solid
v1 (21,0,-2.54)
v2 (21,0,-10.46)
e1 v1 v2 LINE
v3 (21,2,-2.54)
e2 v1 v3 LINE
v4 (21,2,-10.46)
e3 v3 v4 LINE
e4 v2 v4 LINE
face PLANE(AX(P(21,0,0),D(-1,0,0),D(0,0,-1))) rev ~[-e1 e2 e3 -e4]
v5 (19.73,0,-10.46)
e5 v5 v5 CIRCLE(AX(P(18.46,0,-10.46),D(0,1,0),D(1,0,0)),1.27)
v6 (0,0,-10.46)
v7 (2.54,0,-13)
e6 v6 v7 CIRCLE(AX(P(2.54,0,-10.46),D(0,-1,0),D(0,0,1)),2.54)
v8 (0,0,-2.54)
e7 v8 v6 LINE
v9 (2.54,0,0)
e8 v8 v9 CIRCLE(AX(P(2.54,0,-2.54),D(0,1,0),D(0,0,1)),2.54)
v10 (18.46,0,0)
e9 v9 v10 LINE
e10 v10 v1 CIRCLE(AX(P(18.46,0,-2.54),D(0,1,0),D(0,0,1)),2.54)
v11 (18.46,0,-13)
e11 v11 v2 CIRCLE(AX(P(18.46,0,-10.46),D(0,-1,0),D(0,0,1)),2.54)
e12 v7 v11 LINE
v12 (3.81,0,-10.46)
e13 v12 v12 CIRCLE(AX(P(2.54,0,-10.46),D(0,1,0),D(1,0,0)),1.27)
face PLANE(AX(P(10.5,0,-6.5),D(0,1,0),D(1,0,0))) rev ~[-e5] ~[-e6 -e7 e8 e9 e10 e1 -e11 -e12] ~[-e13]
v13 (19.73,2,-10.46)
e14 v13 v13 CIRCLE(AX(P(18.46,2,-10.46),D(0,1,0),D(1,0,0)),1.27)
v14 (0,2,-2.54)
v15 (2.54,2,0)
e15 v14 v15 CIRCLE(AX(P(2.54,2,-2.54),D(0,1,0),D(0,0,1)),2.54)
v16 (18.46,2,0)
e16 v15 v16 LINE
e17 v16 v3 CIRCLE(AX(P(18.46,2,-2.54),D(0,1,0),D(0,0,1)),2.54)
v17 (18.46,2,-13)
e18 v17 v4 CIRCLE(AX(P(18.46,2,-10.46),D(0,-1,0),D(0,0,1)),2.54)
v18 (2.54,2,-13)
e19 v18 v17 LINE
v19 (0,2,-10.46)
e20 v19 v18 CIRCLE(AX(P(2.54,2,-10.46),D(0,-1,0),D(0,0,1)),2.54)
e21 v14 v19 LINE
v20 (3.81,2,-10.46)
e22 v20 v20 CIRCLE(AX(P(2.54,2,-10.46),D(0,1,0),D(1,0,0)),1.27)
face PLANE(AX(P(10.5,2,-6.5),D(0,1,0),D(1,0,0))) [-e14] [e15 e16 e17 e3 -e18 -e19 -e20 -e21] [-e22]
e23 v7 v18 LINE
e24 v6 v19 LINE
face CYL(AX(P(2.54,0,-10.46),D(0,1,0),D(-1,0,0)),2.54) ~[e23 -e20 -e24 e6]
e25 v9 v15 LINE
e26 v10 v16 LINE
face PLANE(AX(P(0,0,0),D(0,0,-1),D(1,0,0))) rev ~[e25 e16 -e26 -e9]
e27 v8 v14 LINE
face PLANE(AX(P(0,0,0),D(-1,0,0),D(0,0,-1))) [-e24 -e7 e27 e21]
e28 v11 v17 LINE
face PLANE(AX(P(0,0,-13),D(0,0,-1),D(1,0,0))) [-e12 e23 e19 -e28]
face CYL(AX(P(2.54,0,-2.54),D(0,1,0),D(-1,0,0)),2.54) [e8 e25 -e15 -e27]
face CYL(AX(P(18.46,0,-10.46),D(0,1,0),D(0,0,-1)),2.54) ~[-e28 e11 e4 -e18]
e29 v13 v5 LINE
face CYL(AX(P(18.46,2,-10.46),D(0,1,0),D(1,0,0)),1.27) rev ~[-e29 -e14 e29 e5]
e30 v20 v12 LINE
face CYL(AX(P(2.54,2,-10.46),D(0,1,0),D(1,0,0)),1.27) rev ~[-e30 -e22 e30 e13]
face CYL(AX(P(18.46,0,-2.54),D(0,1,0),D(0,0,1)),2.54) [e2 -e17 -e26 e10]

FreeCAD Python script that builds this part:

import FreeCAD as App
import Part
import Sketcher


def edges_at(feature, points):
    """Names of the edges that pass closest to the given points."""
    edges = feature.Shape.Edges
    near = lambda p: min(range(len(edges)), key=lambda i: edges[i].distToShape(Part.Vertex(*p))[0])
    return sorted({f"Edge{near(p) + 1}" for p in points})


def add_polygon(sketch, points):
    """Adds a closed chain of lines whose ends are joined by coincident constraints."""
    first, n = sketch.GeometryCount, len(points)
    for a, b in zip(points, points[1:] + points[:1]):
        sketch.addGeometry(Part.LineSegment(App.Vector(*a, 0), App.Vector(*b, 0)), False)
    for i in range(n):
        sketch.addConstraint(Sketcher.Constraint("Coincident", first + i, 2, first + (i + 1) % n, 1))

doc = App.newDocument("Part")
body = doc.addObject("PartDesign::Body", "Body")

sketch1 = body.newObject("Sketcher::SketchObject", "Sketch")
sketch1.AttachmentSupport = (doc.getObject("XZ_Plane"), [""])
sketch1.MapMode = "FlatFace"
add_polygon(sketch1, [(0, -13), (0, 0), (21, 0), (21, -13)])
sketch1.addConstraint([
    Sketcher.Constraint("Vertical", 0),
    Sketcher.Constraint("Horizontal", 1),
    Sketcher.Constraint("Vertical", 2),
    Sketcher.Constraint("Horizontal", 3),
    Sketcher.Constraint("Coincident", 0, 2, -1, 1),
    Sketcher.Constraint("DistanceX", 1, 1, 1, 2, 21.0),
    Sketcher.Constraint("DistanceY", 0, 1, 0, 2, 13.0),
])
pad1 = body.newObject("PartDesign::Pad", "Pad")
pad1.Profile = sketch1
pad1.Length = 2
pad1.Reversed = True

sketch2 = body.newObject("Sketcher::SketchObject", "Sketch001")
sketch2.AttachmentSupport = (doc.getObject("XZ_Plane"), [""])
sketch2.MapMode = "FlatFace"
sketch2.AttachmentOffset = App.Placement(App.Vector(0, 0, -2), App.Rotation())
sketch2.addGeometry([
    Part.Circle(App.Vector(2.5, -10.5, 0), App.Vector(0, 0, 1), 1.3),
    Part.Circle(App.Vector(18.5, -10.5, 0), App.Vector(0, 0, 1), 1.3),
], False)
sketch2.addConstraint([
    Sketcher.Constraint("Equal", 0, 1),
    Sketcher.Constraint("Horizontal", 0, 3, 1, 3),
    Sketcher.Constraint("Diameter", 0, 2.54),
    Sketcher.Constraint("DistanceX", -1, 1, 0, 3, 2.54),
    Sketcher.Constraint("DistanceY", 0, 3, -1, 1, 10.46),
    Sketcher.Constraint("DistanceX", -1, 1, 1, 3, 18.46),
])
pocket1 = body.newObject("PartDesign::Pocket", "Pocket")
pocket1.Profile = sketch2
pocket1.Type = "ThroughAll"
pocket1.Reversed = True
doc.recompute()

fillet = body.newObject("PartDesign::Fillet", "Fillet")
fillet.Base = (pocket1, edges_at(pocket1, [
    (0, 1, -13),
    (21, 1, -13),
    (21, 1, 0),
    (0, 1, 0),
]))
fillet.Radius = 2.54

doc.recompute()
